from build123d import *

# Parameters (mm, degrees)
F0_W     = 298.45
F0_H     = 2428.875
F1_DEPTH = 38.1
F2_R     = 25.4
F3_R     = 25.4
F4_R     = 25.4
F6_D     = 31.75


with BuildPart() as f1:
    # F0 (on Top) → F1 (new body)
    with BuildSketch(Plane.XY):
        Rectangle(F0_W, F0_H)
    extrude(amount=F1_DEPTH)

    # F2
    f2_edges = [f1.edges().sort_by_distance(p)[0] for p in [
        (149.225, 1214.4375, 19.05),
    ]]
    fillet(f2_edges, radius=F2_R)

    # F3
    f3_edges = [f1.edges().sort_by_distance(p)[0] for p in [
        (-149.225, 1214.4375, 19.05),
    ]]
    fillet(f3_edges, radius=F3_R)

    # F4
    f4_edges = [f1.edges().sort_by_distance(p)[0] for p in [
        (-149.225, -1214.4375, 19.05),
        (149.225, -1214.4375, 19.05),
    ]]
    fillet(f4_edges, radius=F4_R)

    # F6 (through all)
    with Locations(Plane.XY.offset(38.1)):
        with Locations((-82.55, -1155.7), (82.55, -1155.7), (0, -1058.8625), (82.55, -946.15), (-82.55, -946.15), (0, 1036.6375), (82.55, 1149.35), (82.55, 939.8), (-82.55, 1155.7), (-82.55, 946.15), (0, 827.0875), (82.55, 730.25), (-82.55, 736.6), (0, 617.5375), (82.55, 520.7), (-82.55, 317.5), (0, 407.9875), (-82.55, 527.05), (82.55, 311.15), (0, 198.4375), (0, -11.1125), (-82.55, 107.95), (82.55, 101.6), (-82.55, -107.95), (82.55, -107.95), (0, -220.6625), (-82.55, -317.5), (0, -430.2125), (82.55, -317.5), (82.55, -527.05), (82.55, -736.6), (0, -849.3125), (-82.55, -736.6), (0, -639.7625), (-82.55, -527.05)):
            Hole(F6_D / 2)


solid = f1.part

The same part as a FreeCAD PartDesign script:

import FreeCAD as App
import Part
import Sketcher
from FreeCAD import Vector
Q = App.Units.Quantity


def edges_at(feature, points):
    """Names of the edges that pass closest to the given points."""
    edges = feature.Shape.Edges
    near = lambda p: min(range(len(edges)), key=lambda i: edges[i].distToShape(Part.Vertex(*p))[0])
    return sorted({f"Edge{near(p) + 1}" for p in points})

doc = App.newDocument("Part")
params = doc.addObject("Spreadsheet::Sheet", "Params")
for row, (alias, value) in enumerate([
    ("sketch1_width", "11.75 in"),
    ("sketch1_height", "95.625 in"),
    ("pad1_length", "1.5 in"),
    ("fillet_radius", "1 in"),
    ("fillet2_radius", "1 in"),
    ("fillet3_radius", "1 in"),
    ("sketch2_diameter", "1.25 in"),
    ("hole_diameter", "1.25 in"),
], start=1):
    params.set(f"A{row}", alias)
    params.set(f"B{row}", "=" + value)
    params.setAlias(f"B{row}", alias)

body = doc.addObject("PartDesign::Body", "Body")

sketch1 = body.newObject("Sketcher::SketchObject", "Sketch")
sketch1.AttachmentSupport = (doc.getObject("XY_Plane"), [""])
sketch1.MapMode = "FlatFace"
sketch1.addGeometry([
    Part.LineSegment(Vector(-149.225, 1214.4375, 0), Vector(-149.225, -1214.4375, 0)),
    Part.LineSegment(Vector(-149.225, -1214.4375, 0), Vector(149.225, -1214.4375, 0)),
    Part.LineSegment(Vector(149.225, -1214.4375, 0), Vector(149.225, 1214.4375, 0)),
    Part.LineSegment(Vector(149.225, 1214.4375, 0), Vector(-149.225, 1214.4375, 0)),
], False)
sketch1.addConstraint([
    Sketcher.Constraint("Coincident", 0, 2, 1, 1),
    Sketcher.Constraint("Coincident", 1, 2, 2, 1),
    Sketcher.Constraint("Coincident", 2, 2, 3, 1),
    Sketcher.Constraint("Coincident", 3, 2, 0, 1),
    Sketcher.Constraint("Vertical", 0),
    Sketcher.Constraint("Horizontal", 1),
    Sketcher.Constraint("Vertical", 2),
    Sketcher.Constraint("Horizontal", 3),
    Sketcher.Constraint("Symmetric", 0, 2, 2, 2, -1, 1),
    Sketcher.Constraint("DistanceX", 1, 1, 1, 2, Q("11.75 in")),
    Sketcher.Constraint("DistanceY", 0, 2, 0, 1, Q("95.625 in")),
])
sketch1.setExpression("Constraints[9]", "Params.sketch1_width")
sketch1.setExpression("Constraints[10]", "Params.sketch1_height")
pad1 = body.newObject("PartDesign::Pad", "Pad")
pad1.Profile = sketch1
pad1.setExpression("Length", "Params.pad1_length")
doc.recompute()

fillet = body.newObject("PartDesign::Fillet", "Fillet")
fillet.Base = (pad1, edges_at(pad1, [(149.225, 1214.438, 19.05)]))
fillet.setExpression("Radius", "Params.fillet_radius")
doc.recompute()

fillet2 = body.newObject("PartDesign::Fillet", "Fillet001")
fillet2.Base = (fillet, edges_at(fillet, [(-149.225, 1214.438, 19.05)]))
fillet2.setExpression("Radius", "Params.fillet2_radius")
doc.recompute()

fillet3 = body.newObject("PartDesign::Fillet", "Fillet002")
fillet3.Base = (fillet2, edges_at(fillet2, [(-149.225, -1214.438, 19.05), (149.225, -1214.438, 19.05)]))
fillet3.setExpression("Radius", "Params.fillet3_radius")

sketch2 = body.newObject("Sketcher::SketchObject", "Sketch001")
sketch2.AttachmentSupport = (doc.getObject("XY_Plane"), [""])
sketch2.MapMode = "FlatFace"
sketch2.AttachmentOffset = App.Placement(Vector(0, 0, 1.5 * 25.4), App.Rotation())
sketch2.addGeometry([
    Part.Circle(Vector(-82.55, -1155.7, 0), Vector(0, 0, 1), 15.875),
    Part.Circle(Vector(82.55, -1155.7, 0), Vector(0, 0, 1), 15.875),
    Part.Circle(Vector(0, -1058.8625, 0), Vector(0, 0, 1), 15.875),
    Part.Circle(Vector(82.55, -946.15, 0), Vector(0, 0, 1), 15.875),
    Part.Circle(Vector(-82.55, -946.15, 0), Vector(0, 0, 1), 15.875),
    Part.Circle(Vector(0, 1036.6375, 0), Vector(0, 0, 1), 15.875),
    Part.Circle(Vector(82.55, 1149.35, 0), Vector(0, 0, 1), 15.875),
    Part.Circle(Vector(82.55, 939.8, 0), Vector(0, 0, 1), 15.875),
    Part.Circle(Vector(-82.55, 1155.7, 0), Vector(0, 0, 1), 15.875),
    Part.Circle(Vector(-82.55, 946.15, 0), Vector(0, 0, 1), 15.875),
    Part.Circle(Vector(0, 827.0875, 0), Vector(0, 0, 1), 15.875),
    Part.Circle(Vector(82.55, 730.25, 0), Vector(0, 0, 1), 15.875),
    Part.Circle(Vector(-82.55, 736.6, 0), Vector(0, 0, 1), 15.875),
    Part.Circle(Vector(0, 617.5375, 0), Vector(0, 0, 1), 15.875),
    Part.Circle(Vector(82.55, 520.7, 0), Vector(0, 0, 1), 15.875),
    Part.Circle(Vector(-82.55, 317.5, 0), Vector(0, 0, 1), 15.875),
    Part.Circle(Vector(0, 407.9875, 0), Vector(0, 0, 1), 15.875),
    Part.Circle(Vector(-82.55, 527.05, 0), Vector(0, 0, 1), 15.875),
    Part.Circle(Vector(82.55, 311.15, 0), Vector(0, 0, 1), 15.875),
    Part.Circle(Vector(0, 198.4375, 0), Vector(0, 0, 1), 15.875),
    Part.Circle(Vector(0, -11.1125, 0), Vector(0, 0, 1), 15.875),
    Part.Circle(Vector(-82.55, 107.95, 0), Vector(0, 0, 1), 15.875),
    Part.Circle(Vector(82.55, 101.6, 0), Vector(0, 0, 1), 15.875),
    Part.Circle(Vector(-82.55, -107.95, 0), Vector(0, 0, 1), 15.875),
    Part.Circle(Vector(82.55, -107.95, 0), Vector(0, 0, 1), 15.875),
    Part.Circle(Vector(0, -220.6625, 0), Vector(0, 0, 1), 15.875),
    Part.Circle(Vector(-82.55, -317.5, 0), Vector(0, 0, 1), 15.875),
    Part.Circle(Vector(0, -430.2125, 0), Vector(0, 0, 1), 15.875),
    Part.Circle(Vector(82.55, -317.5, 0), Vector(0, 0, 1), 15.875),
    Part.Circle(Vector(82.55, -527.05, 0), Vector(0, 0, 1), 15.875),
    Part.Circle(Vector(82.55, -736.6, 0), Vector(0, 0, 1), 15.875),
    Part.Circle(Vector(0, -849.3125, 0), Vector(0, 0, 1), 15.875),
    Part.Circle(Vector(-82.55, -736.6, 0), Vector(0, 0, 1), 15.875),
    Part.Circle(Vector(0, -639.7625, 0), Vector(0, 0, 1), 15.875),
    Part.Circle(Vector(-82.55, -527.05, 0), Vector(0, 0, 1), 15.875),
], False)
sketch2.addConstraint([
    Sketcher.Constraint("Equal", 0, 1),
    Sketcher.Constraint("Equal", 1, 2),
    Sketcher.Constraint("Equal", 2, 3),
    Sketcher.Constraint("Equal", 3, 4),
    Sketcher.Constraint("Equal", 4, 5),
    Sketcher.Constraint("Equal", 5, 6),
    Sketcher.Constraint("Equal", 6, 7),
    Sketcher.Constraint("Equal", 7, 8),
    Sketcher.Constraint("Equal", 8, 9),
    Sketcher.Constraint("Equal", 9, 10),
    Sketcher.Constraint("Equal", 10, 11),
    Sketcher.Constraint("Equal", 11, 12),
    Sketcher.Constraint("Equal", 12, 13),
    Sketcher.Constraint("Equal", 13, 14),
    Sketcher.Constraint("Equal", 14, 15),
    Sketcher.Constraint("Equal", 15, 16),
    Sketcher.Constraint("Equal", 16, 17),
    Sketcher.Constraint("Equal", 17, 18),
    Sketcher.Constraint("Equal", 18, 19),
    Sketcher.Constraint("Equal", 19, 20),
    Sketcher.Constraint("Equal", 20, 21),
    Sketcher.Constraint("Equal", 21, 22),
    Sketcher.Constraint("Equal", 22, 23),
    Sketcher.Constraint("Equal", 23, 24),
    Sketcher.Constraint("Equal", 24, 25),
    Sketcher.Constraint("Equal", 25, 26),
    Sketcher.Constraint("Equal", 26, 27),
    Sketcher.Constraint("Equal", 27, 28),
    Sketcher.Constraint("Equal", 28, 29),
    Sketcher.Constraint("Equal", 29, 30),
    Sketcher.Constraint("Equal", 30, 31),
    Sketcher.Constraint("Equal", 31, 32),
    Sketcher.Constraint("Equal", 32, 33),
    Sketcher.Constraint("Equal", 33, 34),
    Sketcher.Constraint("Symmetric", 1, 3, 8, 3, -1, 1),
    Sketcher.Constraint("Symmetric", 3, 3, 9, 3, -1, 1),
    Sketcher.Constraint("Symmetric", 21, 3, 24, 3, -1, 1),
    Sketcher.Constraint("Symmetric", 15, 3, 28, 3, -1, 1),
    Sketcher.Constraint("Symmetric", 17, 3, 29, 3, -1, 1),
    Sketcher.Constraint("Symmetric", 12, 3, 30, 3, -1, 1),
    Sketcher.Constraint("Symmetric", 0, 3, 1, 3, -2),
    Sketcher.Constraint("Symmetric", 3, 3, 4, 3, -2),
    Sketcher.Constraint("Symmetric", 23, 3, 24, 3, -2),
    Sketcher.Constraint("Symmetric", 26, 3, 28, 3, -2),
    Sketcher.Constraint("Symmetric", 30, 3, 32, 3, -2),
    Sketcher.Constraint("Symmetric", 29, 3, 34, 3, -2),
    Sketcher.Constraint("PointOnObject", 2, 3, -2),
    Sketcher.Constraint("PointOnObject", 5, 3, -2),
    Sketcher.Constraint("PointOnObject", 10, 3, -2),
    Sketcher.Constraint("PointOnObject", 13, 3, -2),
    Sketcher.Constraint("PointOnObject", 16, 3, -2),
    Sketcher.Constraint("PointOnObject", 19, 3, -2),
    Sketcher.Constraint("PointOnObject", 20, 3, -2),
    Sketcher.Constraint("PointOnObject", 25, 3, -2),
    Sketcher.Constraint("PointOnObject", 27, 3, -2),
    Sketcher.Constraint("PointOnObject", 31, 3, -2),
    Sketcher.Constraint("PointOnObject", 33, 3, -2),
    Sketcher.Constraint("Vertical", 1, 3, 3, 3),
    Sketcher.Constraint("Vertical", 3, 3, 6, 3),
    Sketcher.Constraint("Vertical", 6, 3, 7, 3),
    Sketcher.Constraint("Vertical", 7, 3, 11, 3),
    Sketcher.Constraint("Vertical", 9, 3, 12, 3),
    Sketcher.Constraint("Vertical", 11, 3, 14, 3),
    Sketcher.Constraint("Vertical", 12, 3, 15, 3),
    Sketcher.Constraint("Vertical", 15, 3, 17, 3),
    Sketcher.Constraint("Vertical", 14, 3, 18, 3),
    Sketcher.Constraint("Vertical", 17, 3, 21, 3),
    Sketcher.Constraint("Vertical", 18, 3, 22, 3),
    Sketcher.Constraint("Diameter", 0, Q("1.25 in")),
    Sketcher.Constraint("DistanceY", -1, 1, 7, 3, Q("37 in")),
    Sketcher.Constraint("DistanceY", -1, 1, 12, 3, Q("29 in")),
    Sketcher.Constraint("DistanceY", -1, 1, 22, 3, Q("4 in")),
    Sketcher.Constraint("DistanceY", 9, 3, 6, 3, Q("8 in")),
    Sketcher.Constraint("DistanceY", 15, 3, 14, 3, Q("8 in")),
    Sketcher.Constraint("DistanceY", 21, 3, 18, 3, Q("8 in")),
    Sketcher.Constraint("DistanceY", 0, 3, -1, 1, Q("45.5 in")),
    Sketcher.Constraint("DistanceY", -1, 1, 14, 3, Q("20.5 in")),
    Sketcher.Constraint("DistanceX", 0, 3, 1, 3, Q("6.5 in")),
    Sketcher.Constraint("DistanceY", 2, 3, 5, 3, Q("82.5 in")),
    Sketcher.Constraint("DistanceY", 3, 3, 6, 3, Q("82.5 in")),
    Sketcher.Constraint("DistanceY", 11, 3, 9, 3, Q("8.5 in")),
    Sketcher.Constraint("DistanceY", 18, 3, 17, 3, Q("8.5 in")),
    Sketcher.Constraint("DistanceY", 20, 3, 16, 3, Q("16.5 in")),
    Sketcher.Constraint("DistanceY", 23, 3, 21, 3, Q("8.5 in")),
    Sketcher.Constraint("DistanceY", 27, 3, 20, 3, Q("16.5 in")),
    Sketcher.Constraint("DistanceY", 10, 3, 5, 3, Q("8.25 in")),
    Sketcher.Constraint("DistanceY", 13, 3, 10, 3, Q("8.25 in")),
    Sketcher.Constraint("DistanceY", 16, 3, 13, 3, Q("8.25 in")),
    Sketcher.Constraint("DistanceY", 19, 3, 16, 3, Q("8.25 in")),
    Sketcher.Constraint("DistanceY", 25, 3, 20, 3, Q("8.25 in")),
    Sketcher.Constraint("DistanceY", 2, 3, 31, 3, Q("8.25 in")),
    Sketcher.Constraint("DistanceY", 31, 3, 33, 3, Q("8.25 in")),
    Sketcher.Constraint("DistanceY", 2, 3, -1, 1, Q("41.6875 in")),
])
sketch2.setExpression("Constraints[68]", "Params.sketch2_diameter")
doc.recompute()
hole = body.newObject("PartDesign::Hole", "Hole")
hole.Profile = sketch2
hole.ThreadType = "None"
hole.setExpression("Diameter", "Params.hole_diameter")
hole.DepthType = "ThroughAll"

doc.recompute()
